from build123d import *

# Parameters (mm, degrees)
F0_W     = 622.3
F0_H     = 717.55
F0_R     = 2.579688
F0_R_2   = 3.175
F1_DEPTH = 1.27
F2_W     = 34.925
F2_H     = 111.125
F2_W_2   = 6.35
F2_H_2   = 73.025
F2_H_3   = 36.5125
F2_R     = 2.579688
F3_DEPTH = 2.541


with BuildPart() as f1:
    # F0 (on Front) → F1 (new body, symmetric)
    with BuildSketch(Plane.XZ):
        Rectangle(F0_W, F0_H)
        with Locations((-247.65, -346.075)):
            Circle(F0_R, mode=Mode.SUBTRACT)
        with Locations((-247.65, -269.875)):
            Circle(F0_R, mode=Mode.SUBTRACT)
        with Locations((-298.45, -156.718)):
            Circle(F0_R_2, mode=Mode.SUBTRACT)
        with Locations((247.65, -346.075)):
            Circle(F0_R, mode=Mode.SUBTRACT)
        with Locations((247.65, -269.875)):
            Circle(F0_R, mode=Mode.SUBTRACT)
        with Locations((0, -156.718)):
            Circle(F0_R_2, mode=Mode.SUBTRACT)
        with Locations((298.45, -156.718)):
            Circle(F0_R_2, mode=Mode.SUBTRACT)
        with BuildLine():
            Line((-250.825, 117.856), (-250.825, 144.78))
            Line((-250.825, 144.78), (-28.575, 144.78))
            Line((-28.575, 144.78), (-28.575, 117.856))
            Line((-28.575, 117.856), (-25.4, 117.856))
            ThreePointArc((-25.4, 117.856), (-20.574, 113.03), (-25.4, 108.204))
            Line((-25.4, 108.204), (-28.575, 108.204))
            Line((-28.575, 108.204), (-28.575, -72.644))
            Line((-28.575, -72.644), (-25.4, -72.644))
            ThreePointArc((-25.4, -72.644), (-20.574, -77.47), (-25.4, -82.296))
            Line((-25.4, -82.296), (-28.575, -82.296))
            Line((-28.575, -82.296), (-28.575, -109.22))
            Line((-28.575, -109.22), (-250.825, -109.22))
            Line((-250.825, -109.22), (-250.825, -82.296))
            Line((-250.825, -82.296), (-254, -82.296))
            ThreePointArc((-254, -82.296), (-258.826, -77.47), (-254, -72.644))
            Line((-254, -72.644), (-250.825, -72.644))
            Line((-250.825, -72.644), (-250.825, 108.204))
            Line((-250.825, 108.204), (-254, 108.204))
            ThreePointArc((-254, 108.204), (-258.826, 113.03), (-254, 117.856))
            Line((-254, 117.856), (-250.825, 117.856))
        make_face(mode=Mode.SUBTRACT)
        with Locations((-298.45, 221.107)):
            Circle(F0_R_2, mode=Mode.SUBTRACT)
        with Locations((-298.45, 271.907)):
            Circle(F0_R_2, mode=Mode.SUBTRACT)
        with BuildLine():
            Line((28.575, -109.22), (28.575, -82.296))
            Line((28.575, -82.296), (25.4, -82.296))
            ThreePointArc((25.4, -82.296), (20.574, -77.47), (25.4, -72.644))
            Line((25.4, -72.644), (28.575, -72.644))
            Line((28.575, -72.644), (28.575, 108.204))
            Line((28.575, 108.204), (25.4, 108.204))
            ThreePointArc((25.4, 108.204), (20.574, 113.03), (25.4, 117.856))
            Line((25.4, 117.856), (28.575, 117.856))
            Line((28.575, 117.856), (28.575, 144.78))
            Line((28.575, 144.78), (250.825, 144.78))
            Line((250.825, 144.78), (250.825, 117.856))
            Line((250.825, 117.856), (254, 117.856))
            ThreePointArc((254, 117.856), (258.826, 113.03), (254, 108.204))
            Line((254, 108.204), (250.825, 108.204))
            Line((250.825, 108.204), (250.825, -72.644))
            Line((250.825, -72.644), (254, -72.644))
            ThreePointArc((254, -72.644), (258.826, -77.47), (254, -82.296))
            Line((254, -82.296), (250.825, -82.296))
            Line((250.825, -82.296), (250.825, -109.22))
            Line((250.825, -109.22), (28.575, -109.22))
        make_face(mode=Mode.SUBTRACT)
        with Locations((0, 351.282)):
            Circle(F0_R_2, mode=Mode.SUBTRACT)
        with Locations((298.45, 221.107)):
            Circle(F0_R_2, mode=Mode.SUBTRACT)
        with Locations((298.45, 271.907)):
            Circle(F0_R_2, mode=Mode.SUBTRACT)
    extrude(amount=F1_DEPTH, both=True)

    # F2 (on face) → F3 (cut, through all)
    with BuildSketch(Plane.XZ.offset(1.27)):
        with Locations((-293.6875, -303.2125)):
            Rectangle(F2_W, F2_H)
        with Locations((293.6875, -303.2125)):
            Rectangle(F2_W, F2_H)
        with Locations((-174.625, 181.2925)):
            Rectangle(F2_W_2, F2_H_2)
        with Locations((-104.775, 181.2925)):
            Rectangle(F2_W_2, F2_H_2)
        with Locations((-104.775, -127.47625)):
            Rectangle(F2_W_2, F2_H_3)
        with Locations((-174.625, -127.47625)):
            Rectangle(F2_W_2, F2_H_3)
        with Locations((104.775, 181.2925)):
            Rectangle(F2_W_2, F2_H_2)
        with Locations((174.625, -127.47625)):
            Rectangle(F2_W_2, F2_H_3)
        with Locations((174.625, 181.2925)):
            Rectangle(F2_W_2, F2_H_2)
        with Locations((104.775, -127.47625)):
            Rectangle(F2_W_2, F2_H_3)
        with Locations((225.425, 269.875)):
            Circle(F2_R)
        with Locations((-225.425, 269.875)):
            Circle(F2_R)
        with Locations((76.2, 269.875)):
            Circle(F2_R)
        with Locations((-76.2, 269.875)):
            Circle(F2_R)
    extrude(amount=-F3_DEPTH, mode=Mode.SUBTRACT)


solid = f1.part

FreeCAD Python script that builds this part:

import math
import FreeCAD as App
import Part
import Sketcher

V = App.Vector
Q = App.Units.Quantity

doc = App.newDocument("Part")
params = doc.addObject("Spreadsheet::Sheet", "Params")
for row, (alias, value) in enumerate([
    ("sketch1_diameter", "0.25 in"),
    ("sketch1_radius", "0.19 in"),
    ("sketch1_diameter2", "0.203125 in"),
    ("sketch1_width", "24.5 in"),
    ("sketch1_width2", "8.75 in"),
    ("pad1_length", "0.1 in"),
    ("sketch2_diameter", "0.203125 in"),
    ("sketch2_width", "0.25 in"),
    ("sketch2_width2", "1.375 in"),
    ("sketch2_height", "4.375 in"),
    ("sketch2_height2", "2.875 in"),
], start=1):
    params.set(f"A{row}", alias)
    params.set(f"B{row}", "=" + value)
    params.setAlias(f"B{row}", alias)

body = doc.addObject("PartDesign::Body", "Body")

# Sketch on XZ plane
sketch1 = body.newObject("Sketcher::SketchObject", "Sketch")
sketch1.AttachmentSupport = (doc.getObject("XZ_Plane"), [""])
sketch1.MapMode = "FlatFace"
sketch1.addGeometry(Part.LineSegment(V(-311.15, 358.775, 0), V(-311.15, -358.775, 0)), False)
sketch1.addGeometry(Part.LineSegment(V(-311.15, -358.775, 0), V(311.15, -358.775, 0)), False)
sketch1.addGeometry(Part.LineSegment(V(311.15, -358.775, 0), V(311.15, 358.775, 0)), False)
sketch1.addGeometry(Part.LineSegment(V(311.15, 358.775, 0), V(-311.15, 358.775, 0)), False)
sketch1.addGeometry(Part.Circle(V(-247.65, -346.075, 0), V(0, 0, 1), 2.579688), False)
sketch1.addGeometry(Part.Circle(V(-247.65, -269.875, 0), V(0, 0, 1), 2.579688), False)
sketch1.addGeometry(Part.Circle(V(-298.45, -156.718, 0), V(0, 0, 1), 3.175), False)
sketch1.addGeometry(Part.Circle(V(247.65, -346.075, 0), V(0, 0, 1), 2.579688), False)
sketch1.addGeometry(Part.Circle(V(247.65, -269.875, 0), V(0, 0, 1), 2.579688), False)
sketch1.addGeometry(Part.Circle(V(0, -156.718, 0), V(0, 0, 1), 3.175), False)
sketch1.addGeometry(Part.Circle(V(298.45, -156.718, 0), V(0, 0, 1), 3.175), False)
sketch1.addGeometry(Part.LineSegment(V(-254, 117.856, 0), V(-250.825, 117.856, 0)), False)
sketch1.addGeometry(Part.LineSegment(V(-250.825, 117.856, 0), V(-250.825, 144.78, 0)), False)
sketch1.addGeometry(Part.LineSegment(V(-250.825, 144.78, 0), V(-28.575, 144.78, 0)), False)
sketch1.addGeometry(Part.LineSegment(V(-28.575, 144.78, 0), V(-28.575, 117.856, 0)), False)
sketch1.addGeometry(Part.LineSegment(V(-28.575, 117.856, 0), V(-25.4, 117.856, 0)), False)
sketch1.addGeometry(Part.ArcOfCircle(Part.Circle(V(-25.4, 113.03, 0), V(0, 0, 1), 4.826), math.radians(-90), math.radians(90)), False)
sketch1.addGeometry(Part.LineSegment(V(-25.4, 108.204, 0), V(-28.575, 108.204, 0)), False)
sketch1.addGeometry(Part.LineSegment(V(-28.575, 108.204, 0), V(-28.575, -72.644, 0)), False)
sketch1.addGeometry(Part.LineSegment(V(-28.575, -72.644, 0), V(-25.4, -72.644, 0)), False)
sketch1.addGeometry(Part.ArcOfCircle(Part.Circle(V(-25.4, -77.47, 0), V(0, 0, 1), 4.826), math.radians(-90), math.radians(90)), False)
sketch1.addGeometry(Part.LineSegment(V(-25.4, -82.296, 0), V(-28.575, -82.296, 0)), False)
sketch1.addGeometry(Part.LineSegment(V(-28.575, -82.296, 0), V(-28.575, -109.22, 0)), False)
sketch1.addGeometry(Part.LineSegment(V(-28.575, -109.22, 0), V(-250.825, -109.22, 0)), False)
sketch1.addGeometry(Part.LineSegment(V(-250.825, -109.22, 0), V(-250.825, -82.296, 0)), False)
sketch1.addGeometry(Part.LineSegment(V(-250.825, -82.296, 0), V(-254, -82.296, 0)), False)
sketch1.addGeometry(Part.ArcOfCircle(Part.Circle(V(-254, -77.47, 0), V(0, 0, 1), 4.826), math.radians(90), math.radians(270)), False)
sketch1.addGeometry(Part.LineSegment(V(-254, -72.644, 0), V(-250.825, -72.644, 0)), False)
sketch1.addGeometry(Part.LineSegment(V(-250.825, -72.644, 0), V(-250.825, 108.204, 0)), False)
sketch1.addGeometry(Part.LineSegment(V(-250.825, 108.204, 0), V(-254, 108.204, 0)), False)
sketch1.addGeometry(Part.ArcOfCircle(Part.Circle(V(-254, 113.03, 0), V(0, 0, 1), 4.826), math.radians(90), math.radians(270)), False)
sketch1.addGeometry(Part.Circle(V(-298.45, 221.107, 0), V(0, 0, 1), 3.175), False)
sketch1.addGeometry(Part.Circle(V(-298.45, 271.907, 0), V(0, 0, 1), 3.175), False)
sketch1.addGeometry(Part.LineSegment(V(250.825, -109.22, 0), V(28.575, -109.22, 0)), False)
sketch1.addGeometry(Part.LineSegment(V(28.575, -109.22, 0), V(28.575, -82.296, 0)), False)
sketch1.addGeometry(Part.LineSegment(V(28.575, -82.296, 0), V(25.4, -82.296, 0)), False)
sketch1.addGeometry(Part.ArcOfCircle(Part.Circle(V(25.4, -77.47, 0), V(0, 0, 1), 4.826), math.radians(90), math.radians(270)), False)
sketch1.addGeometry(Part.LineSegment(V(25.4, -72.644, 0), V(28.575, -72.644, 0)), False)
sketch1.addGeometry(Part.LineSegment(V(28.575, -72.644, 0), V(28.575, 108.204, 0)), False)
sketch1.addGeometry(Part.LineSegment(V(28.575, 108.204, 0), V(25.4, 108.204, 0)), False)
sketch1.addGeometry(Part.ArcOfCircle(Part.Circle(V(25.4, 113.03, 0), V(0, 0, 1), 4.826), math.radians(90), math.radians(270)), False)
sketch1.addGeometry(Part.LineSegment(V(25.4, 117.856, 0), V(28.575, 117.856, 0)), False)
sketch1.addGeometry(Part.LineSegment(V(28.575, 117.856, 0), V(28.575, 144.78, 0)), False)
sketch1.addGeometry(Part.LineSegment(V(28.575, 144.78, 0), V(250.825, 144.78, 0)), False)
sketch1.addGeometry(Part.LineSegment(V(250.825, 144.78, 0), V(250.825, 117.856, 0)), False)
sketch1.addGeometry(Part.LineSegment(V(250.825, 117.856, 0), V(254, 117.856, 0)), False)
sketch1.addGeometry(Part.ArcOfCircle(Part.Circle(V(254, 113.03, 0), V(0, 0, 1), 4.826), math.radians(-90), math.radians(90)), False)
sketch1.addGeometry(Part.LineSegment(V(254, 108.204, 0), V(250.825, 108.204, 0)), False)
sketch1.addGeometry(Part.LineSegment(V(250.825, 108.204, 0), V(250.825, -72.644, 0)), False)
sketch1.addGeometry(Part.LineSegment(V(250.825, -72.644, 0), V(254, -72.644, 0)), False)
sketch1.addGeometry(Part.ArcOfCircle(Part.Circle(V(254, -77.47, 0), V(0, 0, 1), 4.826), math.radians(-90), math.radians(90)), False)
sketch1.addGeometry(Part.LineSegment(V(254, -82.296, 0), V(250.825, -82.296, 0)), False)
sketch1.addGeometry(Part.LineSegment(V(250.825, -82.296, 0), V(250.825, -109.22, 0)), False)
sketch1.addGeometry(Part.Circle(V(0, 351.282, 0), V(0, 0, 1), 3.175), False)
sketch1.addGeometry(Part.Circle(V(298.45, 221.107, 0), V(0, 0, 1), 3.175), False)
sketch1.addGeometry(Part.Circle(V(298.45, 271.907, 0), V(0, 0, 1), 3.175), False)
sketch1.addConstraint(Sketcher.Constraint("Coincident", 0, 2, 1, 1))
sketch1.addConstraint(Sketcher.Constraint("Coincident", 1, 2, 2, 1))
sketch1.addConstraint(Sketcher.Constraint("Coincident", 2, 2, 3, 1))
sketch1.addConstraint(Sketcher.Constraint("Coincident", 3, 2, 0, 1))
sketch1.addConstraint(Sketcher.Constraint("Coincident", 11, 2, 12, 1))
sketch1.addConstraint(Sketcher.Constraint("Coincident", 12, 2, 13, 1))
sketch1.addConstraint(Sketcher.Constraint("Coincident", 13, 2, 14, 1))
sketch1.addConstraint(Sketcher.Constraint("Coincident", 14, 2, 15, 1))
sketch1.addConstraint(Sketcher.Constraint("Tangent", 15, 2, 16, 2))
sketch1.addConstraint(Sketcher.Constraint("Tangent", 16, 1, 17, 1))
sketch1.addConstraint(Sketcher.Constraint("Coincident", 17, 2, 18, 1))
sketch1.addConstraint(Sketcher.Constraint("Coincident", 18, 2, 19, 1))
sketch1.addConstraint(Sketcher.Constraint("Tangent", 19, 2, 20, 2))
sketch1.addConstraint(Sketcher.Constraint("Tangent", 20, 1, 21, 1))
sketch1.addConstraint(Sketcher.Constraint("Coincident", 21, 2, 22, 1))
sketch1.addConstraint(Sketcher.Constraint("Coincident", 22, 2, 23, 1))
sketch1.addConstraint(Sketcher.Constraint("Coincident", 23, 2, 24, 1))
sketch1.addConstraint(Sketcher.Constraint("Coincident", 24, 2, 25, 1))
sketch1.addConstraint(Sketcher.Constraint("Tangent", 25, 2, 26, 2))
sketch1.addConstraint(Sketcher.Constraint("Tangent", 26, 1, 27, 1))
sketch1.addConstraint(Sketcher.Constraint("Coincident", 27, 2, 28, 1))
sketch1.addConstraint(Sketcher.Constraint("Coincident", 28, 2, 29, 1))
sketch1.addConstraint(Sketcher.Constraint("Tangent", 29, 2, 30, 2))
sketch1.addConstraint(Sketcher.Constraint("Tangent", 30, 1, 11, 1))
sketch1.addConstraint(Sketcher.Constraint("Coincident", 33, 2, 34, 1))
sketch1.addConstraint(Sketcher.Constraint("Coincident", 34, 2, 35, 1))
sketch1.addConstraint(Sketcher.Constraint("Tangent", 35, 2, 36, 2))
sketch1.addConstraint(Sketcher.Constraint("Tangent", 36, 1, 37, 1))
sketch1.addConstraint(Sketcher.Constraint("Coincident", 37, 2, 38, 1))
sketch1.addConstraint(Sketcher.Constraint("Coincident", 38, 2, 39, 1))
sketch1.addConstraint(Sketcher.Constraint("Tangent", 39, 2, 40, 2))
sketch1.addConstraint(Sketcher.Constraint("Tangent", 40, 1, 41, 1))
sketch1.addConstraint(Sketcher.Constraint("Coincident", 41, 2, 42, 1))
sketch1.addConstraint(Sketcher.Constraint("Coincident", 42, 2, 43, 1))
sketch1.addConstraint(Sketcher.Constraint("Coincident", 43, 2, 44, 1))
sketch1.addConstraint(Sketcher.Constraint("Coincident", 44, 2, 45, 1))
sketch1.addConstraint(Sketcher.Constraint("Tangent", 45, 2, 46, 2))
sketch1.addConstraint(Sketcher.Constraint("Tangent", 46, 1, 47, 1))
sketch1.addConstraint(Sketcher.Constraint("Coincident", 47, 2, 48, 1))
sketch1.addConstraint(Sketcher.Constraint("Coincident", 48, 2, 49, 1))
sketch1.addConstraint(Sketcher.Constraint("Tangent", 49, 2, 50, 2))
sketch1.addConstraint(Sketcher.Constraint("Tangent", 50, 1, 51, 1))
sketch1.addConstraint(Sketcher.Constraint("Coincident", 51, 2, 52, 1))
sketch1.addConstraint(Sketcher.Constraint("Coincident", 52, 2, 33, 1))
sketch1.addConstraint(Sketcher.Constraint("Vertical", 0))
sketch1.addConstraint(Sketcher.Constraint("Horizontal", 1))
sketch1.addConstraint(Sketcher.Constraint("Vertical", 2))
sketch1.addConstraint(Sketcher.Constraint("Horizontal", 3))
sketch1.addConstraint(Sketcher.Constraint("Horizontal", 11))
sketch1.addConstraint(Sketcher.Constraint("Vertical", 12))
sketch1.addConstraint(Sketcher.Constraint("Horizontal", 13))
sketch1.addConstraint(Sketcher.Constraint("Vertical", 14))
sketch1.addConstraint(Sketcher.Constraint("Horizontal", 15))
sketch1.addConstraint(Sketcher.Constraint("Horizontal", 17))
sketch1.addConstraint(Sketcher.Constraint("Vertical", 18))
sketch1.addConstraint(Sketcher.Constraint("Horizontal", 19))
sketch1.addConstraint(Sketcher.Constraint("Horizontal", 21))
sketch1.addConstraint(Sketcher.Constraint("Vertical", 22))
sketch1.addConstraint(Sketcher.Constraint("Horizontal", 23))
sketch1.addConstraint(Sketcher.Constraint("Vertical", 24))
sketch1.addConstraint(Sketcher.Constraint("Horizontal", 25))
sketch1.addConstraint(Sketcher.Constraint("Horizontal", 27))
sketch1.addConstraint(Sketcher.Constraint("Vertical", 28))
sketch1.addConstraint(Sketcher.Constraint("Horizontal", 29))
sketch1.addConstraint(Sketcher.Constraint("Horizontal", 33))
sketch1.addConstraint(Sketcher.Constraint("Vertical", 34))
sketch1.addConstraint(Sketcher.Constraint("Horizontal", 35))
sketch1.addConstraint(Sketcher.Constraint("Horizontal", 37))
sketch1.addConstraint(Sketcher.Constraint("Vertical", 38))
sketch1.addConstraint(Sketcher.Constraint("Horizontal", 39))
sketch1.addConstraint(Sketcher.Constraint("Horizontal", 41))
sketch1.addConstraint(Sketcher.Constraint("Vertical", 42))
sketch1.addConstraint(Sketcher.Constraint("Horizontal", 43))
sketch1.addConstraint(Sketcher.Constraint("Vertical", 44))
sketch1.addConstraint(Sketcher.Constraint("Horizontal", 45))
sketch1.addConstraint(Sketcher.Constraint("Horizontal", 47))
sketch1.addConstraint(Sketcher.Constraint("Vertical", 48))
sketch1.addConstraint(Sketcher.Constraint("Horizontal", 49))
sketch1.addConstraint(Sketcher.Constraint("Horizontal", 51))
sketch1.addConstraint(Sketcher.Constraint("Vertical", 52))
sketch1.addConstraint(Sketcher.Constraint("Equal", 4, 5))
sketch1.addConstraint(Sketcher.Constraint("Equal", 5, 7))
sketch1.addConstraint(Sketcher.Constraint("Equal", 7, 8))
sketch1.addConstraint(Sketcher.Constraint("Equal", 6, 9))
sketch1.addConstraint(Sketcher.Constraint("Equal", 9, 10))
sketch1.addConstraint(Sketcher.Constraint("Equal", 16, 20))
sketch1.addConstraint(Sketcher.Constraint("Equal", 20, 26))
sketch1.addConstraint(Sketcher.Constraint("Equal", 26, 30))
sketch1.addConstraint(Sketcher.Constraint("Equal", 10, 31))
sketch1.addConstraint(Sketcher.Constraint("Equal", 31, 32))
sketch1.addConstraint(Sketcher.Constraint("Equal", 30, 36))
sketch1.addConstraint(Sketcher.Constraint("Equal", 36, 40))
sketch1.addConstraint(Sketcher.Constraint("Equal", 40, 46))
sketch1.addConstraint(Sketcher.Constraint("Equal", 46, 50))
sketch1.addConstraint(Sketcher.Constraint("Equal", 32, 53))
sketch1.addConstraint(Sketcher.Constraint("Equal", 53, 54))
sketch1.addConstraint(Sketcher.Constraint("Equal", 54, 55))
sketch1.addConstraint(Sketcher.Constraint("Symmetric", 0, 2, 2, 2, -1, 1))
sketch1.addConstraint(Sketcher.Constraint("Symmetric", 4, 3, 7, 3, -2))
sketch1.addConstraint(Sketcher.Constraint("Symmetric", 5, 3, 8, 3, -2))
sketch1.addConstraint(Sketcher.Constraint("Symmetric", 6, 3, 10, 3, -2))
sketch1.addConstraint(Sketcher.Constraint("Symmetric", 20, 3, 36, 3, -2))
sketch1.addConstraint(Sketcher.Constraint("Symmetric", 16, 3, 40, 3, -2))
sketch1.addConstraint(Sketcher.Constraint("Symmetric", 30, 3, 46, 3, -2))
sketch1.addConstraint(Sketcher.Constraint("Symmetric", 26, 3, 50, 3, -2))
sketch1.addConstraint(Sketcher.Constraint("Symmetric", 31, 3, 54, 3, -2))
sketch1.addConstraint(Sketcher.Constraint("Symmetric", 32, 3, 55, 3, -2))
sketch1.addConstraint(Sketcher.Constraint("Symmetric", 22, 2, 33, 2, -2))
sketch1.addConstraint(Sketcher.Constraint("Symmetric", 13, 2, 42, 2, -2))
sketch1.addConstraint(Sketcher.Constraint("PointOnObject", 9, 3, -2))
sketch1.addConstraint(Sketcher.Constraint("PointOnObject", 53, 3, -2))
sketch1.addConstraint(Sketcher.Constraint("Horizontal", 6, 3, 9, 3))
sketch1.addConstraint(Sketcher.Constraint("Horizontal", 20, 3, 26, 3))
sketch1.addConstraint(Sketcher.Constraint("Horizontal", 16, 3, 30, 3))
sketch1.addConstraint(Sketcher.Constraint("Vertical", 4, 3, 5, 3))
sketch1.addConstraint(Sketcher.Constraint("Vertical", 16, 3, 20, 3))
sketch1.addConstraint(Sketcher.Constraint("Vertical", 26, 3, 30, 3))
sketch1.addConstraint(Sketcher.Constraint("Vertical", 6, 3, 31, 3))
sketch1.addConstraint(Sketcher.Constraint("Vertical", 31, 3, 32, 3))
sketch1.addConstraint(Sketcher.Constraint("Vertical", 14, 2, 17, 2))
sketch1.addConstraint(Sketcher.Constraint("Vertical", 18, 2, 21, 2))
sketch1.addConstraint(Sketcher.Constraint("Vertical", 12, 2, 23, 2))
sketch1.addConstraint(Sketcher.Constraint("Vertical", 24, 2, 27, 2))
sketch1.addConstraint(Sketcher.Constraint("Vertical", 34, 2, 37, 2))
sketch1.addConstraint(Sketcher.Constraint("Vertical", 44, 2, 47, 2))
sketch1.addConstraint(Sketcher.Constraint("Vertical", 48, 2, 51, 2))
sketch1.addConstraint(Sketcher.Constraint("Equal", 11, 15))
sketch1.addConstraint(Sketcher.Constraint("Equal", 23, 33))
sketch1.addConstraint(Sketcher.Constraint("Equal", 14, 22))
sketch1.addConstraint(Sketcher.Constraint("Diameter", 6, Q("0.25 in")))
sketch1.addConstraint(Sketcher.Constraint("Radius", 16, Q("0.19 in")))
sketch1.addConstraint(Sketcher.Constraint("Diameter", 4, Q("0.203125 in")))
sketch1.addConstraint(Sketcher.Constraint("DistanceX", 1, 1, 1, 2, Q("24.5 in")))
sketch1.addConstraint(Sketcher.Constraint("DistanceX", 16, 3, -1, 1, Q("1 in")))
sketch1.addConstraint(Sketcher.Constraint("DistanceX", 26, 3, -1, 1, Q("10 in")))
sketch1.addConstraint(Sketcher.Constraint("DistanceX", 13, 1, 13, 2, Q("8.75 in")))
sketch1.addConstraint(Sketcher.Constraint("DistanceY", 0, 2, 0, 1, Q("28.25 in")))
sketch1.addConstraint(Sketcher.Constraint("DistanceY", 12, 1, 12, 2, Q("1.06 in")))
sketch1.addConstraint(Sketcher.Constraint("DistanceY", 18, 2, 18, 1, Q("7.12 in")))
sketch1.addConstraint(Sketcher.Constraint("DistanceY", -1, 1, 12, 2, Q("5.7 in")))
sketch1.addConstraint(Sketcher.Constraint("DistanceX", 4, 3, -1, 1, Q("9.75 in")))
sketch1.addConstraint(Sketcher.Constraint("DistanceX", 6, 3, -1, 1, Q("11.75 in")))
sketch1.addConstraint(Sketcher.Constraint("DistanceY", 6, 3, -1, 1, Q("6.17 in")))
sketch1.addConstraint(Sketcher.Constraint("DistanceY", -1, 1, 53, 3, Q("13.83 in")))
sketch1.addConstraint(Sketcher.Constraint("DistanceY", 4, 3, -1, 1, Q("13.625 in")))
sketch1.addConstraint(Sketcher.Constraint("DistanceY", 5, 3, -1, 1, Q("10.625 in")))
sketch1.addConstraint(Sketcher.Constraint("DistanceY", -1, 1, 31, 3, Q("8.705 in")))
sketch1.addConstraint(Sketcher.Constraint("DistanceY", -1, 1, 32, 3, Q("10.705 in")))
sketch1.setExpression("Constraints[129]", "Params.sketch1_diameter")
sketch1.setExpression("Constraints[130]", "Params.sketch1_radius")
sketch1.setExpression("Constraints[131]", "Params.sketch1_diameter2")
sketch1.setExpression("Constraints[132]", "Params.sketch1_width")
sketch1.setExpression("Constraints[135]", "Params.sketch1_width2")
pad1 = body.newObject("PartDesign::Pad", "Pad")
pad1.Profile = sketch1
pad1.setExpression("Length", "Params.pad1_length")
pad1.Midplane = True

# Sketch on XZ plane
sketch2 = body.newObject("Sketcher::SketchObject", "Sketch001")
sketch2.AttachmentSupport = (doc.getObject("XZ_Plane"), [""])
sketch2.MapMode = "FlatFace"
sketch2.AttachmentOffset = App.Placement(V(0, 0, 0.05 * 25.4), App.Rotation())
sketch2.addGeometry(Part.LineSegment(V(-311.15, -247.65, 0), V(-311.15, -358.775, 0)), False)
sketch2.addGeometry(Part.LineSegment(V(-311.15, -358.775, 0), V(-276.225, -358.775, 0)), False)
sketch2.addGeometry(Part.LineSegment(V(-276.225, -358.775, 0), V(-276.225, -247.65, 0)), False)
sketch2.addGeometry(Part.LineSegment(V(-276.225, -247.65, 0), V(-311.15, -247.65, 0)), False)
sketch2.addGeometry(Part.LineSegment(V(276.225, -247.65, 0), V(276.225, -358.775, 0)), False)
sketch2.addGeometry(Part.LineSegment(V(276.225, -358.775, 0), V(311.15, -358.775, 0)), False)
sketch2.addGeometry(Part.LineSegment(V(311.15, -358.775, 0), V(311.15, -247.65, 0)), False)
sketch2.addGeometry(Part.LineSegment(V(311.15, -247.65, 0), V(276.225, -247.65, 0)), False)
sketch2.addGeometry(Part.LineSegment(V(-177.8, 217.805, 0), V(-177.8, 144.78, 0)), False)
sketch2.addGeometry(Part.LineSegment(V(-177.8, 144.78, 0), V(-171.45, 144.78, 0)), False)
sketch2.addGeometry(Part.LineSegment(V(-171.45, 144.78, 0), V(-171.45, 217.805, 0)), False)
sketch2.addGeometry(Part.LineSegment(V(-171.45, 217.805, 0), V(-177.8, 217.805, 0)), False)
sketch2.addGeometry(Part.LineSegment(V(-107.95, 217.805, 0), V(-107.95, 144.78, 0)), False)
sketch2.addGeometry(Part.LineSegment(V(-107.95, 144.78, 0), V(-101.6, 144.78, 0)), False)
sketch2.addGeometry(Part.LineSegment(V(-101.6, 144.78, 0), V(-101.6, 217.805, 0)), False)
sketch2.addGeometry(Part.LineSegment(V(-101.6, 217.805, 0), V(-107.95, 217.805, 0)), False)
sketch2.addGeometry(Part.LineSegment(V(-107.95, -109.22, 0), V(-107.95, -145.7325, 0)), False)
sketch2.addGeometry(Part.LineSegment(V(-107.95, -145.7325, 0), V(-101.6, -145.7325, 0)), False)
sketch2.addGeometry(Part.LineSegment(V(-101.6, -145.7325, 0), V(-101.6, -109.22, 0)), False)
sketch2.addGeometry(Part.LineSegment(V(-101.6, -109.22, 0), V(-107.95, -109.22, 0)), False)
sketch2.addGeometry(Part.LineSegment(V(-177.8, -109.22, 0), V(-177.8, -145.7325, 0)), False)
sketch2.addGeometry(Part.LineSegment(V(-177.8, -145.7325, 0), V(-171.45, -145.7325, 0)), False)
sketch2.addGeometry(Part.LineSegment(V(-171.45, -145.7325, 0), V(-171.45, -109.22, 0)), False)
sketch2.addGeometry(Part.LineSegment(V(-171.45, -109.22, 0), V(-177.8, -109.22, 0)), False)
sketch2.addGeometry(Part.LineSegment(V(101.6, 217.805, 0), V(101.6, 144.78, 0)), False)
sketch2.addGeometry(Part.LineSegment(V(101.6, 144.78, 0), V(107.95, 144.78, 0)), False)
sketch2.addGeometry(Part.LineSegment(V(107.95, 144.78, 0), V(107.95, 217.805, 0)), False)
sketch2.addGeometry(Part.LineSegment(V(107.95, 217.805, 0), V(101.6, 217.805, 0)), False)
sketch2.addGeometry(Part.LineSegment(V(171.45, -109.22, 0), V(171.45, -145.7325, 0)), False)
sketch2.addGeometry(Part.LineSegment(V(171.45, -145.7325, 0), V(177.8, -145.7325, 0)), False)
sketch2.addGeometry(Part.LineSegment(V(177.8, -145.7325, 0), V(177.8, -109.22, 0)), False)
sketch2.addGeometry(Part.LineSegment(V(177.8, -109.22, 0), V(171.45, -109.22, 0)), False)
sketch2.addGeometry(Part.LineSegment(V(171.45, 217.805, 0), V(171.45, 144.78, 0)), False)
sketch2.addGeometry(Part.LineSegment(V(171.45, 144.78, 0), V(177.8, 144.78, 0)), False)
sketch2.addGeometry(Part.LineSegment(V(177.8, 144.78, 0), V(177.8, 217.805, 0)), False)
sketch2.addGeometry(Part.LineSegment(V(177.8, 217.805, 0), V(171.45, 217.805, 0)), False)
sketch2.addGeometry(Part.LineSegment(V(101.6, -109.22, 0), V(101.6, -145.7325, 0)), False)
sketch2.addGeometry(Part.LineSegment(V(101.6, -145.7325, 0), V(107.95, -145.7325, 0)), False)
sketch2.addGeometry(Part.LineSegment(V(107.95, -145.7325, 0), V(107.95, -109.22, 0)), False)
sketch2.addGeometry(Part.LineSegment(V(107.95, -109.22, 0), V(101.6, -109.22, 0)), False)
sketch2.addGeometry(Part.Circle(V(225.425, 269.875, 0), V(0, 0, 1), 2.579688), False)
sketch2.addGeometry(Part.Circle(V(-225.425, 269.875, 0), V(0, 0, 1), 2.579688), False)
sketch2.addGeometry(Part.Circle(V(76.2, 269.875, 0), V(0, 0, 1), 2.579688), False)
sketch2.addGeometry(Part.Circle(V(-76.2, 269.875, 0), V(0, 0, 1), 2.579688), False)
sketch2.addConstraint(Sketcher.Constraint("Coincident", 0, 2, 1, 1))
sketch2.addConstraint(Sketcher.Constraint("Coincident", 1, 2, 2, 1))
sketch2.addConstraint(Sketcher.Constraint("Coincident", 2, 2, 3, 1))
sketch2.addConstraint(Sketcher.Constraint("Coincident", 3, 2, 0, 1))
sketch2.addConstraint(Sketcher.Constraint("Coincident", 4, 2, 5, 1))
sketch2.addConstraint(Sketcher.Constraint("Coincident", 5, 2, 6, 1))
sketch2.addConstraint(Sketcher.Constraint("Coincident", 6, 2, 7, 1))
sketch2.addConstraint(Sketcher.Constraint("Coincident", 7, 2, 4, 1))
sketch2.addConstraint(Sketcher.Constraint("Coincident", 8, 2, 9, 1))
sketch2.addConstraint(Sketcher.Constraint("Coincident", 9, 2, 10, 1))
sketch2.addConstraint(Sketcher.Constraint("Coincident", 10, 2, 11, 1))
sketch2.addConstraint(Sketcher.Constraint("Coincident", 11, 2, 8, 1))
sketch2.addConstraint(Sketcher.Constraint("Coincident", 12, 2, 13, 1))
sketch2.addConstraint(Sketcher.Constraint("Coincident", 13, 2, 14, 1))
sketch2.addConstraint(Sketcher.Constraint("Coincident", 14, 2, 15, 1))
sketch2.addConstraint(Sketcher.Constraint("Coincident", 15, 2, 12, 1))
sketch2.addConstraint(Sketcher.Constraint("Coincident", 16, 2, 17, 1))
sketch2.addConstraint(Sketcher.Constraint("Coincident", 17, 2, 18, 1))
sketch2.addConstraint(Sketcher.Constraint("Coincident", 18, 2, 19, 1))
sketch2.addConstraint(Sketcher.Constraint("Coincident", 19, 2, 16, 1))
sketch2.addConstraint(Sketcher.Constraint("Coincident", 20, 2, 21, 1))
sketch2.addConstraint(Sketcher.Constraint("Coincident", 21, 2, 22, 1))
sketch2.addConstraint(Sketcher.Constraint("Coincident", 22, 2, 23, 1))
sketch2.addConstraint(Sketcher.Constraint("Coincident", 23, 2, 20, 1))
sketch2.addConstraint(Sketcher.Constraint("Coincident", 24, 2, 25, 1))
sketch2.addConstraint(Sketcher.Constraint("Coincident", 25, 2, 26, 1))
sketch2.addConstraint(Sketcher.Constraint("Coincident", 26, 2, 27, 1))
sketch2.addConstraint(Sketcher.Constraint("Coincident", 27, 2, 24, 1))
sketch2.addConstraint(Sketcher.Constraint("Coincident", 28, 2, 29, 1))
sketch2.addConstraint(Sketcher.Constraint("Coincident", 29, 2, 30, 1))
sketch2.addConstraint(Sketcher.Constraint("Coincident", 30, 2, 31, 1))
sketch2.addConstraint(Sketcher.Constraint("Coincident", 31, 2, 28, 1))
sketch2.addConstraint(Sketcher.Constraint("Coincident", 32, 2, 33, 1))
sketch2.addConstraint(Sketcher.Constraint("Coincident", 33, 2, 34, 1))
sketch2.addConstraint(Sketcher.Constraint("Coincident", 34, 2, 35, 1))
sketch2.addConstraint(Sketcher.Constraint("Coincident", 35, 2, 32, 1))
sketch2.addConstraint(Sketcher.Constraint("Coincident", 36, 2, 37, 1))
sketch2.addConstraint(Sketcher.Constraint("Coincident", 37, 2, 38, 1))
sketch2.addConstraint(Sketcher.Constraint("Coincident", 38, 2, 39, 1))
sketch2.addConstraint(Sketcher.Constraint("Coincident", 39, 2, 36, 1))
sketch2.addConstraint(Sketcher.Constraint("Vertical", 0))
sketch2.addConstraint(Sketcher.Constraint("Horizontal", 1))
sketch2.addConstraint(Sketcher.Constraint("Vertical", 2))
sketch2.addConstraint(Sketcher.Constraint("Horizontal", 3))
sketch2.addConstraint(Sketcher.Constraint("Vertical", 4))
sketch2.addConstraint(Sketcher.Constraint("Horizontal", 5))
sketch2.addConstraint(Sketcher.Constraint("Vertical", 6))
sketch2.addConstraint(Sketcher.Constraint("Horizontal", 7))
sketch2.addConstraint(Sketcher.Constraint("Vertical", 8))
sketch2.addConstraint(Sketcher.Constraint("Horizontal", 9))
sketch2.addConstraint(Sketcher.Constraint("Vertical", 10))
sketch2.addConstraint(Sketcher.Constraint("Horizontal", 11))
sketch2.addConstraint(Sketcher.Constraint("Vertical", 12))
sketch2.addConstraint(Sketcher.Constraint("Horizontal", 13))
sketch2.addConstraint(Sketcher.Constraint("Vertical", 14))
sketch2.addConstraint(Sketcher.Constraint("Horizontal", 15))
sketch2.addConstraint(Sketcher.Constraint("Vertical", 16))
sketch2.addConstraint(Sketcher.Constraint("Horizontal", 17))
sketch2.addConstraint(Sketcher.Constraint("Vertical", 18))
sketch2.addConstraint(Sketcher.Constraint("Horizontal", 19))
sketch2.addConstraint(Sketcher.Constraint("Vertical", 20))
sketch2.addConstraint(Sketcher.Constraint("Horizontal", 21))
sketch2.addConstraint(Sketcher.Constraint("Vertical", 22))
sketch2.addConstraint(Sketcher.Constraint("Horizontal", 23))
sketch2.addConstraint(Sketcher.Constraint("Vertical", 24))
sketch2.addConstraint(Sketcher.Constraint("Horizontal", 25))
sketch2.addConstraint(Sketcher.Constraint("Vertical", 26))
sketch2.addConstraint(Sketcher.Constraint("Horizontal", 27))
sketch2.addConstraint(Sketcher.Constraint("Vertical", 28))
sketch2.addConstraint(Sketcher.Constraint("Horizontal", 29))
sketch2.addConstraint(Sketcher.Constraint("Vertical", 30))
sketch2.addConstraint(Sketcher.Constraint("Horizontal", 31))
sketch2.addConstraint(Sketcher.Constraint("Vertical", 32))
sketch2.addConstraint(Sketcher.Constraint("Horizontal", 33))
sketch2.addConstraint(Sketcher.Constraint("Vertical", 34))
sketch2.addConstraint(Sketcher.Constraint("Horizontal", 35))
sketch2.addConstraint(Sketcher.Constraint("Vertical", 36))
sketch2.addConstraint(Sketcher.Constraint("Horizontal", 37))
sketch2.addConstraint(Sketcher.Constraint("Vertical", 38))
sketch2.addConstraint(Sketcher.Constraint("Horizontal", 39))
sketch2.addConstraint(Sketcher.Constraint("Equal", 40, 41))
sketch2.addConstraint(Sketcher.Constraint("Equal", 41, 42))
sketch2.addConstraint(Sketcher.Constraint("Equal", 42, 43))
sketch2.addConstraint(Sketcher.Constraint("Symmetric", 40, 3, 41, 3, -2))
sketch2.addConstraint(Sketcher.Constraint("Symmetric", 42, 3, 43, 3, -2))
sketch2.addConstraint(Sketcher.Constraint("Symmetric", 1, 2, 4, 2, -2))
sketch2.addConstraint(Sketcher.Constraint("Symmetric", 3, 2, 6, 2, -2))
sketch2.addConstraint(Sketcher.Constraint("Symmetric", 13, 2, 24, 2, -2))
sketch2.addConstraint(Sketcher.Constraint("Symmetric", 15, 2, 26, 2, -2))
sketch2.addConstraint(Sketcher.Constraint("Symmetric", 21, 2, 28, 2, -2))
sketch2.addConstraint(Sketcher.Constraint("Symmetric", 23, 2, 30, 2, -2))
sketch2.addConstraint(Sketcher.Constraint("Symmetric", 9, 2, 32, 2, -2))
sketch2.addConstraint(Sketcher.Constraint("Symmetric", 11, 2, 34, 2, -2))
sketch2.addConstraint(Sketcher.Constraint("Symmetric", 17, 2, 36, 2, -2))
sketch2.addConstraint(Sketcher.Constraint("Symmetric", 19, 2, 38, 2, -2))
sketch2.addConstraint(Sketcher.Constraint("Horizontal", 41, 3, 42, 3))
sketch2.addConstraint(Sketcher.Constraint("Horizontal", 9, 2, 12, 2))
sketch2.addConstraint(Sketcher.Constraint("Horizontal", 11, 2, 14, 2))
sketch2.addConstraint(Sketcher.Constraint("Horizontal", 17, 2, 20, 2))
sketch2.addConstraint(Sketcher.Constraint("Horizontal", 19, 2, 22, 2))
sketch2.addConstraint(Sketcher.Constraint("Vertical", 15, 2, 16, 2))
sketch2.addConstraint(Sketcher.Constraint("Vertical", 14, 2, 17, 2))
sketch2.addConstraint(Sketcher.Constraint("Vertical", 11, 2, 20, 2))
sketch2.addConstraint(Sketcher.Constraint("Vertical", 10, 2, 21, 2))
sketch2.addConstraint(Sketcher.Constraint("Equal", 11, 13))
sketch2.addConstraint(Sketcher.Constraint("Diameter", 40, Q("0.203125 in")))
sketch2.addConstraint(Sketcher.Constraint("DistanceX", -1, 1, 42, 3, Q("3 in")))
sketch2.addConstraint(Sketcher.Constraint("DistanceX", 8, 2, -1, 1, Q("7 in")))
sketch2.addConstraint(Sketcher.Constraint("DistanceX", 13, 2, -1, 1, Q("4 in")))
sketch2.addConstraint(Sketcher.Constraint("DistanceX", 1, 2, 41, 3, Q("2 in")))
sketch2.addConstraint(Sketcher.Constraint("DistanceX", 3, 2, 16, 2, Q("8 in")))
sketch2.addConstraint(Sketcher.Constraint("DistanceY", 18, 2, 13, 2, Q("10 in")))
sketch2.addConstraint(Sketcher.Constraint("DistanceX", 9, 1, 9, 2, Q("0.25 in")))
sketch2.addConstraint(Sketcher.Constraint("DistanceY", -1, 1, 8, 2, Q("5.7 in")))
sketch2.addConstraint(Sketcher.Constraint("DistanceX", 1, 1, 1, 2, Q("1.375 in")))
sketch2.addConstraint(Sketcher.Constraint("DistanceY", 0, 2, 0, 1, Q("4.375 in")))
sketch2.addConstraint(Sketcher.Constraint("DistanceY", 8, 2, 8, 1, Q("2.875 in")))
sketch2.addConstraint(Sketcher.Constraint("DistanceY", 16, 2, 16, 1, Q("1.4375 in")))
sketch2.addConstraint(Sketcher.Constraint("DistanceY", 2, 2, -1, 1, Q("9.75 in")))
sketch2.addConstraint(Sketcher.Constraint("DistanceY", 0, 2, 41, 3, Q("24.75 in")))
sketch2.setExpression("Constraints[105]", "Params.sketch2_diameter")
sketch2.setExpression("Constraints[112]", "Params.sketch2_width")
sketch2.setExpression("Constraints[114]", "Params.sketch2_width2")
sketch2.setExpression("Constraints[115]", "Params.sketch2_height")
sketch2.setExpression("Constraints[116]", "Params.sketch2_height2")
pocket1 = body.newObject("PartDesign::Pocket", "Pocket")
pocket1.Profile = sketch2
pocket1.Type = "ThroughAll"

doc.recompute()
